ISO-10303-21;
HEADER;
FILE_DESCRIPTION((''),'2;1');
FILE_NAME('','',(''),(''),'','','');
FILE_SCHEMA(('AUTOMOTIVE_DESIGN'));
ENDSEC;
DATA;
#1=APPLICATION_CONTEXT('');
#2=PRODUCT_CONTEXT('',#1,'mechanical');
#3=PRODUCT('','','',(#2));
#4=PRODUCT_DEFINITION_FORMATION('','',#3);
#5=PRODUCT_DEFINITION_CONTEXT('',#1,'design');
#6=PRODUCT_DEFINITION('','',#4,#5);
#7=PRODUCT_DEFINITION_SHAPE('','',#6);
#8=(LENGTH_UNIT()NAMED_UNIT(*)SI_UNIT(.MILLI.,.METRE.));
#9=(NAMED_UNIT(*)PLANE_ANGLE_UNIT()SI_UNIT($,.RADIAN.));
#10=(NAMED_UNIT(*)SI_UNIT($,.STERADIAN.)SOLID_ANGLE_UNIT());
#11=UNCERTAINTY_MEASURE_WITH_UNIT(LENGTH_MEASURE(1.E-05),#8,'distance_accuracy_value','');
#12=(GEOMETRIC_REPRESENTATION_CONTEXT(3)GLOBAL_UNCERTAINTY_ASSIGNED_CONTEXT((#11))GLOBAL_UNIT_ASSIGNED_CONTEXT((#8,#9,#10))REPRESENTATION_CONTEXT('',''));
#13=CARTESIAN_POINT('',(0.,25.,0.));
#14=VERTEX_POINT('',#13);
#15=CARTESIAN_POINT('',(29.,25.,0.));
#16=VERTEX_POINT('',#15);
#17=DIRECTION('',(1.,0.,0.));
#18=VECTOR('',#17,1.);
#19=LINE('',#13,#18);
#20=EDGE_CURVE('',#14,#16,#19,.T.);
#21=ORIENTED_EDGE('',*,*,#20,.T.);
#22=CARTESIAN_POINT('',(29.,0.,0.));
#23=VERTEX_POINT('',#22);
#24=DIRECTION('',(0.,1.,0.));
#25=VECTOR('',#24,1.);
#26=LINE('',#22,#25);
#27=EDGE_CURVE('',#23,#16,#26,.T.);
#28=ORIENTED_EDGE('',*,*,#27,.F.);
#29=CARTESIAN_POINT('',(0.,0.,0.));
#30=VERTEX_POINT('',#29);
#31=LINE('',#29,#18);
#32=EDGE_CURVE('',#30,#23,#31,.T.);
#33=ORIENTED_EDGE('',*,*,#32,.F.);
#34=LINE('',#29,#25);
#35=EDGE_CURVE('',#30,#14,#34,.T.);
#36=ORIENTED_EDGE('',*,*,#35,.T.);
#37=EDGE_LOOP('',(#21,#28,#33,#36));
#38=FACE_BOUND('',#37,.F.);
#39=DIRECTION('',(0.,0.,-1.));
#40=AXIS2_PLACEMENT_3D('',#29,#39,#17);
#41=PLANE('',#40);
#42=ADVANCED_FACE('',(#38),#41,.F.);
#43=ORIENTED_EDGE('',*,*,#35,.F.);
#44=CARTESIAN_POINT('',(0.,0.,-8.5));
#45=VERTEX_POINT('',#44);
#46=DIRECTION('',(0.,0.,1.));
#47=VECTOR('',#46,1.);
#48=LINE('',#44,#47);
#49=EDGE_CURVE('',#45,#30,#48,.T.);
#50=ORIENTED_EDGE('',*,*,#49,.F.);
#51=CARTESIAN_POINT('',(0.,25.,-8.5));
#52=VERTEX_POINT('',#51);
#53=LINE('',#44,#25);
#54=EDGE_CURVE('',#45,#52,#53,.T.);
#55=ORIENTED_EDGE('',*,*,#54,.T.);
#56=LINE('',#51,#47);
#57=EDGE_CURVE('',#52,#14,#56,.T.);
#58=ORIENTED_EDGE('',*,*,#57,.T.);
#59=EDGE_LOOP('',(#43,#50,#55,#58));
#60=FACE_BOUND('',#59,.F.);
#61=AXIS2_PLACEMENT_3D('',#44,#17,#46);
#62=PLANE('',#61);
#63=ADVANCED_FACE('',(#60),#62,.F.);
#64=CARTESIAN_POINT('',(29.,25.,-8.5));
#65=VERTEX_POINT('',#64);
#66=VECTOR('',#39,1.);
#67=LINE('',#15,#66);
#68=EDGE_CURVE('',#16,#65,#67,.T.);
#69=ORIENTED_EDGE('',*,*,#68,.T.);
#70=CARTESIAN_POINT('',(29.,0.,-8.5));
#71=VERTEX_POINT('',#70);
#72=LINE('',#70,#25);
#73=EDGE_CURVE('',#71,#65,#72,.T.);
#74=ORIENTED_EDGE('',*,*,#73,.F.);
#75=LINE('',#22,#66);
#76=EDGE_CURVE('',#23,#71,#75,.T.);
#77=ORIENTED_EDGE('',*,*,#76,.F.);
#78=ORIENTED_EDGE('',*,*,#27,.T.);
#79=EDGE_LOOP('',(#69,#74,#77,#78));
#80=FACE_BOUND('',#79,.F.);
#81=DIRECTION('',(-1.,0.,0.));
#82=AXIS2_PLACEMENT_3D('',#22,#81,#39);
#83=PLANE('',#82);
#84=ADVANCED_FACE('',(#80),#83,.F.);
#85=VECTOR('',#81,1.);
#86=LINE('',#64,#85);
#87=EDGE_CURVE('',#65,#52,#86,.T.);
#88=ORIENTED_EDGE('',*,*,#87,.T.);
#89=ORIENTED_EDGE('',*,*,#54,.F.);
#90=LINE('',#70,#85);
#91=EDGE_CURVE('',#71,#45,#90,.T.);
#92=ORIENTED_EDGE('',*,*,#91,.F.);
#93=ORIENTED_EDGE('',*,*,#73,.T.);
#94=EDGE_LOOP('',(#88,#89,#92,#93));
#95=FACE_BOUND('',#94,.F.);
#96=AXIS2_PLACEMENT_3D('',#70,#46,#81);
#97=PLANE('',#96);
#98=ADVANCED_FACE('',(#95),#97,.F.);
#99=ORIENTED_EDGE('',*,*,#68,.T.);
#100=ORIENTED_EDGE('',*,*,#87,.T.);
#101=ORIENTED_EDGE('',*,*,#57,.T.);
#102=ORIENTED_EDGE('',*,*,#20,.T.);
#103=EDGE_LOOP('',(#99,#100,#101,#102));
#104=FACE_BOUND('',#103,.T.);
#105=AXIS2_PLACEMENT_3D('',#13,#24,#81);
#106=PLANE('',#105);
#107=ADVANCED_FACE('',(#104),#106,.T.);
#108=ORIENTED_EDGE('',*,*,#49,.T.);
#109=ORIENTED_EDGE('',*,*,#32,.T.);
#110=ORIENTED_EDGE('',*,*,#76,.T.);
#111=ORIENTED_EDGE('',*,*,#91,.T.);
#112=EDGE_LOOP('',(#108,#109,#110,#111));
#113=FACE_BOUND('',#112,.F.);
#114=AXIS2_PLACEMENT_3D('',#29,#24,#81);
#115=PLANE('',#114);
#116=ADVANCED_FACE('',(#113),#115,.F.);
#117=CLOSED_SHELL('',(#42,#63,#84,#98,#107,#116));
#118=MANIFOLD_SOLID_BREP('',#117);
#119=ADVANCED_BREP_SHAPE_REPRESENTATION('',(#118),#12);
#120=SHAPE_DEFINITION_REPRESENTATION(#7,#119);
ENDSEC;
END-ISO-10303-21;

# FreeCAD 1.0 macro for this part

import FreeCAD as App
import Part
import Sketcher
from FreeCAD import Vector

doc = App.newDocument("Part")
body = doc.addObject("PartDesign::Body", "Body")

sketch1 = doc.addObject("Sketcher::SketchObject", "Sketch")
body.addObject(sketch1)
sketch1.AttachmentSupport = (doc.XZ_Plane, [""])
sketch1.MapMode = "FlatFace"
sketch1.addGeometry(Part.LineSegment(Vector(0, -8, 0), Vector(0, 0, 0)), False)
sketch1.addGeometry(Part.LineSegment(Vector(0, 0, 0), Vector(29, 0, 0)), False)
sketch1.addGeometry(Part.LineSegment(Vector(29, 0, 0), Vector(29, -8, 0)), False)
sketch1.addGeometry(Part.LineSegment(Vector(29, -8, 0), Vector(0, -8, 0)), False)
sketch1.addConstraint(Sketcher.Constraint("Coincident", 0, 2, 1, 1))
sketch1.addConstraint(Sketcher.Constraint("Coincident", 1, 2, 2, 1))
sketch1.addConstraint(Sketcher.Constraint("Coincident", 2, 2, 3, 1))
sketch1.addConstraint(Sketcher.Constraint("Coincident", 3, 2, 0, 1))
sketch1.addConstraint(Sketcher.Constraint("Vertical", 0))
sketch1.addConstraint(Sketcher.Constraint("Horizontal", 1))
sketch1.addConstraint(Sketcher.Constraint("Vertical", 2))
sketch1.addConstraint(Sketcher.Constraint("Horizontal", 3))
sketch1.addConstraint(Sketcher.Constraint("Coincident", 0, 2, -1, 1))
sketch1.addConstraint(Sketcher.Constraint("DistanceX", 1, 1, 1, 2, 29.0))
sketch1.addConstraint(Sketcher.Constraint("DistanceY", 0, 1, 0, 2, 8.5))
pad1 = doc.addObject("PartDesign::Pad", "Pad")
body.addObject(pad1)
pad1.Profile = sketch1
pad1.Length = 25
pad1.Reversed = True

doc.recompute()
